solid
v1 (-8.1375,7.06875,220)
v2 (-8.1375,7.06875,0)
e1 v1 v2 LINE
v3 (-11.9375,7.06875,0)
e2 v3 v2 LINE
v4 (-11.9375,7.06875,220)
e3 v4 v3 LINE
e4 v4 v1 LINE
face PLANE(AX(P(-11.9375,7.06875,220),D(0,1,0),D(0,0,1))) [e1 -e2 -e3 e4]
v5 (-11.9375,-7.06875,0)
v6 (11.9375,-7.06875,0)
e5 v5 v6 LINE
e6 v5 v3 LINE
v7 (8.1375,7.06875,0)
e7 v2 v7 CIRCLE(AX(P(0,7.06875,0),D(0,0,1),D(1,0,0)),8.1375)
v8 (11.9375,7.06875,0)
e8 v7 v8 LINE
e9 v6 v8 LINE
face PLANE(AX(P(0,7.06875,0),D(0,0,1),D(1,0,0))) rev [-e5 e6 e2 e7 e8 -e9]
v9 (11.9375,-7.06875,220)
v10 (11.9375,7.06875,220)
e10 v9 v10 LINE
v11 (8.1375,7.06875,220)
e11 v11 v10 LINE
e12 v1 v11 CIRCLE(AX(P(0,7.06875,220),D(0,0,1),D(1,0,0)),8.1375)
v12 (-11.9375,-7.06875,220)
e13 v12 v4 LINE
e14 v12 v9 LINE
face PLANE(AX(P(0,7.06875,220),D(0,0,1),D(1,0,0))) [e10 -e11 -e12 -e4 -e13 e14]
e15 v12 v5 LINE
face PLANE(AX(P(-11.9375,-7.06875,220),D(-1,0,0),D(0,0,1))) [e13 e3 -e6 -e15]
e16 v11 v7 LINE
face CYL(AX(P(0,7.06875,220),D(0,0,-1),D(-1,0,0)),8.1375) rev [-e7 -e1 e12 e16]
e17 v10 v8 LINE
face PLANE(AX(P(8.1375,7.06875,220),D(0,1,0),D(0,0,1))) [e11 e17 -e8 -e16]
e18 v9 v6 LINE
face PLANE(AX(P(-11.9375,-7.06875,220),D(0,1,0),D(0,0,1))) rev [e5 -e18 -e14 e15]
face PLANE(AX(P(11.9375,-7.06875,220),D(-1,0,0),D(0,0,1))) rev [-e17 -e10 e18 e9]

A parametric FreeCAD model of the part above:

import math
import FreeCAD as App
import Part
import Sketcher

V = App.Vector
Q = App.Units.Quantity

doc = App.newDocument("Part")
body = doc.addObject("PartDesign::Body", "Body")

sketch1 = body.newObject("Sketcher::SketchObject", "Sketch")
sketch1.AttachmentSupport = (doc.getObject("XY_Plane"), [""])
sketch1.MapMode = "FlatFace"
sketch1.addGeometry([
    Part.LineSegment(V(11.9, 7.1, 0), V(8.1, 7.1, 0)),
    Part.ArcOfCircle(Part.Circle(V(0, 7.1, 0), V(0, 0, 1), 8.1), math.radians(180), math.radians(360)),
    Part.LineSegment(V(-8.1, 7.1, 0), V(-11.9, 7.1, 0)),
    Part.LineSegment(V(-11.9, 7.1, 0), V(-11.9, -7.1, 0)),
    Part.LineSegment(V(-11.9, -7.1, 0), V(11.9, -7.1, 0)),
    Part.LineSegment(V(11.9, -7.1, 0), V(11.9, 7.1, 0)),
], False)
sketch1.addConstraint([
    Sketcher.Constraint("Coincident", 0, 2, 1, 2),
    Sketcher.Constraint("Coincident", 1, 1, 2, 1),
    Sketcher.Constraint("Coincident", 2, 2, 3, 1),
    Sketcher.Constraint("Coincident", 3, 2, 4, 1),
    Sketcher.Constraint("Coincident", 4, 2, 5, 1),
    Sketcher.Constraint("Coincident", 5, 2, 0, 1),
    Sketcher.Constraint("Horizontal", 0),
    Sketcher.Constraint("Horizontal", 2),
    Sketcher.Constraint("Vertical", 3),
    Sketcher.Constraint("Horizontal", 4),
    Sketcher.Constraint("Vertical", 5),
    Sketcher.Constraint("Symmetric", 2, 2, 4, 2, -1, 1),
    Sketcher.Constraint("Symmetric", 0, 2, 1, 1, -2),
    Sketcher.Constraint("Horizontal", 1, 3, 0, 2),
    Sketcher.Constraint("DistanceX", 0, 2, 0, 1, Q("3.8 mm")),
    Sketcher.Constraint("Radius", 1, Q("8.1375 mm")),
    Sketcher.Constraint("DistanceY", 3, 2, 3, 1, Q("14.1375 mm")),
])
pad1 = body.newObject("PartDesign::Pad", "Pad")
pad1.Profile = sketch1
pad1.Length = 220

doc.recompute()
